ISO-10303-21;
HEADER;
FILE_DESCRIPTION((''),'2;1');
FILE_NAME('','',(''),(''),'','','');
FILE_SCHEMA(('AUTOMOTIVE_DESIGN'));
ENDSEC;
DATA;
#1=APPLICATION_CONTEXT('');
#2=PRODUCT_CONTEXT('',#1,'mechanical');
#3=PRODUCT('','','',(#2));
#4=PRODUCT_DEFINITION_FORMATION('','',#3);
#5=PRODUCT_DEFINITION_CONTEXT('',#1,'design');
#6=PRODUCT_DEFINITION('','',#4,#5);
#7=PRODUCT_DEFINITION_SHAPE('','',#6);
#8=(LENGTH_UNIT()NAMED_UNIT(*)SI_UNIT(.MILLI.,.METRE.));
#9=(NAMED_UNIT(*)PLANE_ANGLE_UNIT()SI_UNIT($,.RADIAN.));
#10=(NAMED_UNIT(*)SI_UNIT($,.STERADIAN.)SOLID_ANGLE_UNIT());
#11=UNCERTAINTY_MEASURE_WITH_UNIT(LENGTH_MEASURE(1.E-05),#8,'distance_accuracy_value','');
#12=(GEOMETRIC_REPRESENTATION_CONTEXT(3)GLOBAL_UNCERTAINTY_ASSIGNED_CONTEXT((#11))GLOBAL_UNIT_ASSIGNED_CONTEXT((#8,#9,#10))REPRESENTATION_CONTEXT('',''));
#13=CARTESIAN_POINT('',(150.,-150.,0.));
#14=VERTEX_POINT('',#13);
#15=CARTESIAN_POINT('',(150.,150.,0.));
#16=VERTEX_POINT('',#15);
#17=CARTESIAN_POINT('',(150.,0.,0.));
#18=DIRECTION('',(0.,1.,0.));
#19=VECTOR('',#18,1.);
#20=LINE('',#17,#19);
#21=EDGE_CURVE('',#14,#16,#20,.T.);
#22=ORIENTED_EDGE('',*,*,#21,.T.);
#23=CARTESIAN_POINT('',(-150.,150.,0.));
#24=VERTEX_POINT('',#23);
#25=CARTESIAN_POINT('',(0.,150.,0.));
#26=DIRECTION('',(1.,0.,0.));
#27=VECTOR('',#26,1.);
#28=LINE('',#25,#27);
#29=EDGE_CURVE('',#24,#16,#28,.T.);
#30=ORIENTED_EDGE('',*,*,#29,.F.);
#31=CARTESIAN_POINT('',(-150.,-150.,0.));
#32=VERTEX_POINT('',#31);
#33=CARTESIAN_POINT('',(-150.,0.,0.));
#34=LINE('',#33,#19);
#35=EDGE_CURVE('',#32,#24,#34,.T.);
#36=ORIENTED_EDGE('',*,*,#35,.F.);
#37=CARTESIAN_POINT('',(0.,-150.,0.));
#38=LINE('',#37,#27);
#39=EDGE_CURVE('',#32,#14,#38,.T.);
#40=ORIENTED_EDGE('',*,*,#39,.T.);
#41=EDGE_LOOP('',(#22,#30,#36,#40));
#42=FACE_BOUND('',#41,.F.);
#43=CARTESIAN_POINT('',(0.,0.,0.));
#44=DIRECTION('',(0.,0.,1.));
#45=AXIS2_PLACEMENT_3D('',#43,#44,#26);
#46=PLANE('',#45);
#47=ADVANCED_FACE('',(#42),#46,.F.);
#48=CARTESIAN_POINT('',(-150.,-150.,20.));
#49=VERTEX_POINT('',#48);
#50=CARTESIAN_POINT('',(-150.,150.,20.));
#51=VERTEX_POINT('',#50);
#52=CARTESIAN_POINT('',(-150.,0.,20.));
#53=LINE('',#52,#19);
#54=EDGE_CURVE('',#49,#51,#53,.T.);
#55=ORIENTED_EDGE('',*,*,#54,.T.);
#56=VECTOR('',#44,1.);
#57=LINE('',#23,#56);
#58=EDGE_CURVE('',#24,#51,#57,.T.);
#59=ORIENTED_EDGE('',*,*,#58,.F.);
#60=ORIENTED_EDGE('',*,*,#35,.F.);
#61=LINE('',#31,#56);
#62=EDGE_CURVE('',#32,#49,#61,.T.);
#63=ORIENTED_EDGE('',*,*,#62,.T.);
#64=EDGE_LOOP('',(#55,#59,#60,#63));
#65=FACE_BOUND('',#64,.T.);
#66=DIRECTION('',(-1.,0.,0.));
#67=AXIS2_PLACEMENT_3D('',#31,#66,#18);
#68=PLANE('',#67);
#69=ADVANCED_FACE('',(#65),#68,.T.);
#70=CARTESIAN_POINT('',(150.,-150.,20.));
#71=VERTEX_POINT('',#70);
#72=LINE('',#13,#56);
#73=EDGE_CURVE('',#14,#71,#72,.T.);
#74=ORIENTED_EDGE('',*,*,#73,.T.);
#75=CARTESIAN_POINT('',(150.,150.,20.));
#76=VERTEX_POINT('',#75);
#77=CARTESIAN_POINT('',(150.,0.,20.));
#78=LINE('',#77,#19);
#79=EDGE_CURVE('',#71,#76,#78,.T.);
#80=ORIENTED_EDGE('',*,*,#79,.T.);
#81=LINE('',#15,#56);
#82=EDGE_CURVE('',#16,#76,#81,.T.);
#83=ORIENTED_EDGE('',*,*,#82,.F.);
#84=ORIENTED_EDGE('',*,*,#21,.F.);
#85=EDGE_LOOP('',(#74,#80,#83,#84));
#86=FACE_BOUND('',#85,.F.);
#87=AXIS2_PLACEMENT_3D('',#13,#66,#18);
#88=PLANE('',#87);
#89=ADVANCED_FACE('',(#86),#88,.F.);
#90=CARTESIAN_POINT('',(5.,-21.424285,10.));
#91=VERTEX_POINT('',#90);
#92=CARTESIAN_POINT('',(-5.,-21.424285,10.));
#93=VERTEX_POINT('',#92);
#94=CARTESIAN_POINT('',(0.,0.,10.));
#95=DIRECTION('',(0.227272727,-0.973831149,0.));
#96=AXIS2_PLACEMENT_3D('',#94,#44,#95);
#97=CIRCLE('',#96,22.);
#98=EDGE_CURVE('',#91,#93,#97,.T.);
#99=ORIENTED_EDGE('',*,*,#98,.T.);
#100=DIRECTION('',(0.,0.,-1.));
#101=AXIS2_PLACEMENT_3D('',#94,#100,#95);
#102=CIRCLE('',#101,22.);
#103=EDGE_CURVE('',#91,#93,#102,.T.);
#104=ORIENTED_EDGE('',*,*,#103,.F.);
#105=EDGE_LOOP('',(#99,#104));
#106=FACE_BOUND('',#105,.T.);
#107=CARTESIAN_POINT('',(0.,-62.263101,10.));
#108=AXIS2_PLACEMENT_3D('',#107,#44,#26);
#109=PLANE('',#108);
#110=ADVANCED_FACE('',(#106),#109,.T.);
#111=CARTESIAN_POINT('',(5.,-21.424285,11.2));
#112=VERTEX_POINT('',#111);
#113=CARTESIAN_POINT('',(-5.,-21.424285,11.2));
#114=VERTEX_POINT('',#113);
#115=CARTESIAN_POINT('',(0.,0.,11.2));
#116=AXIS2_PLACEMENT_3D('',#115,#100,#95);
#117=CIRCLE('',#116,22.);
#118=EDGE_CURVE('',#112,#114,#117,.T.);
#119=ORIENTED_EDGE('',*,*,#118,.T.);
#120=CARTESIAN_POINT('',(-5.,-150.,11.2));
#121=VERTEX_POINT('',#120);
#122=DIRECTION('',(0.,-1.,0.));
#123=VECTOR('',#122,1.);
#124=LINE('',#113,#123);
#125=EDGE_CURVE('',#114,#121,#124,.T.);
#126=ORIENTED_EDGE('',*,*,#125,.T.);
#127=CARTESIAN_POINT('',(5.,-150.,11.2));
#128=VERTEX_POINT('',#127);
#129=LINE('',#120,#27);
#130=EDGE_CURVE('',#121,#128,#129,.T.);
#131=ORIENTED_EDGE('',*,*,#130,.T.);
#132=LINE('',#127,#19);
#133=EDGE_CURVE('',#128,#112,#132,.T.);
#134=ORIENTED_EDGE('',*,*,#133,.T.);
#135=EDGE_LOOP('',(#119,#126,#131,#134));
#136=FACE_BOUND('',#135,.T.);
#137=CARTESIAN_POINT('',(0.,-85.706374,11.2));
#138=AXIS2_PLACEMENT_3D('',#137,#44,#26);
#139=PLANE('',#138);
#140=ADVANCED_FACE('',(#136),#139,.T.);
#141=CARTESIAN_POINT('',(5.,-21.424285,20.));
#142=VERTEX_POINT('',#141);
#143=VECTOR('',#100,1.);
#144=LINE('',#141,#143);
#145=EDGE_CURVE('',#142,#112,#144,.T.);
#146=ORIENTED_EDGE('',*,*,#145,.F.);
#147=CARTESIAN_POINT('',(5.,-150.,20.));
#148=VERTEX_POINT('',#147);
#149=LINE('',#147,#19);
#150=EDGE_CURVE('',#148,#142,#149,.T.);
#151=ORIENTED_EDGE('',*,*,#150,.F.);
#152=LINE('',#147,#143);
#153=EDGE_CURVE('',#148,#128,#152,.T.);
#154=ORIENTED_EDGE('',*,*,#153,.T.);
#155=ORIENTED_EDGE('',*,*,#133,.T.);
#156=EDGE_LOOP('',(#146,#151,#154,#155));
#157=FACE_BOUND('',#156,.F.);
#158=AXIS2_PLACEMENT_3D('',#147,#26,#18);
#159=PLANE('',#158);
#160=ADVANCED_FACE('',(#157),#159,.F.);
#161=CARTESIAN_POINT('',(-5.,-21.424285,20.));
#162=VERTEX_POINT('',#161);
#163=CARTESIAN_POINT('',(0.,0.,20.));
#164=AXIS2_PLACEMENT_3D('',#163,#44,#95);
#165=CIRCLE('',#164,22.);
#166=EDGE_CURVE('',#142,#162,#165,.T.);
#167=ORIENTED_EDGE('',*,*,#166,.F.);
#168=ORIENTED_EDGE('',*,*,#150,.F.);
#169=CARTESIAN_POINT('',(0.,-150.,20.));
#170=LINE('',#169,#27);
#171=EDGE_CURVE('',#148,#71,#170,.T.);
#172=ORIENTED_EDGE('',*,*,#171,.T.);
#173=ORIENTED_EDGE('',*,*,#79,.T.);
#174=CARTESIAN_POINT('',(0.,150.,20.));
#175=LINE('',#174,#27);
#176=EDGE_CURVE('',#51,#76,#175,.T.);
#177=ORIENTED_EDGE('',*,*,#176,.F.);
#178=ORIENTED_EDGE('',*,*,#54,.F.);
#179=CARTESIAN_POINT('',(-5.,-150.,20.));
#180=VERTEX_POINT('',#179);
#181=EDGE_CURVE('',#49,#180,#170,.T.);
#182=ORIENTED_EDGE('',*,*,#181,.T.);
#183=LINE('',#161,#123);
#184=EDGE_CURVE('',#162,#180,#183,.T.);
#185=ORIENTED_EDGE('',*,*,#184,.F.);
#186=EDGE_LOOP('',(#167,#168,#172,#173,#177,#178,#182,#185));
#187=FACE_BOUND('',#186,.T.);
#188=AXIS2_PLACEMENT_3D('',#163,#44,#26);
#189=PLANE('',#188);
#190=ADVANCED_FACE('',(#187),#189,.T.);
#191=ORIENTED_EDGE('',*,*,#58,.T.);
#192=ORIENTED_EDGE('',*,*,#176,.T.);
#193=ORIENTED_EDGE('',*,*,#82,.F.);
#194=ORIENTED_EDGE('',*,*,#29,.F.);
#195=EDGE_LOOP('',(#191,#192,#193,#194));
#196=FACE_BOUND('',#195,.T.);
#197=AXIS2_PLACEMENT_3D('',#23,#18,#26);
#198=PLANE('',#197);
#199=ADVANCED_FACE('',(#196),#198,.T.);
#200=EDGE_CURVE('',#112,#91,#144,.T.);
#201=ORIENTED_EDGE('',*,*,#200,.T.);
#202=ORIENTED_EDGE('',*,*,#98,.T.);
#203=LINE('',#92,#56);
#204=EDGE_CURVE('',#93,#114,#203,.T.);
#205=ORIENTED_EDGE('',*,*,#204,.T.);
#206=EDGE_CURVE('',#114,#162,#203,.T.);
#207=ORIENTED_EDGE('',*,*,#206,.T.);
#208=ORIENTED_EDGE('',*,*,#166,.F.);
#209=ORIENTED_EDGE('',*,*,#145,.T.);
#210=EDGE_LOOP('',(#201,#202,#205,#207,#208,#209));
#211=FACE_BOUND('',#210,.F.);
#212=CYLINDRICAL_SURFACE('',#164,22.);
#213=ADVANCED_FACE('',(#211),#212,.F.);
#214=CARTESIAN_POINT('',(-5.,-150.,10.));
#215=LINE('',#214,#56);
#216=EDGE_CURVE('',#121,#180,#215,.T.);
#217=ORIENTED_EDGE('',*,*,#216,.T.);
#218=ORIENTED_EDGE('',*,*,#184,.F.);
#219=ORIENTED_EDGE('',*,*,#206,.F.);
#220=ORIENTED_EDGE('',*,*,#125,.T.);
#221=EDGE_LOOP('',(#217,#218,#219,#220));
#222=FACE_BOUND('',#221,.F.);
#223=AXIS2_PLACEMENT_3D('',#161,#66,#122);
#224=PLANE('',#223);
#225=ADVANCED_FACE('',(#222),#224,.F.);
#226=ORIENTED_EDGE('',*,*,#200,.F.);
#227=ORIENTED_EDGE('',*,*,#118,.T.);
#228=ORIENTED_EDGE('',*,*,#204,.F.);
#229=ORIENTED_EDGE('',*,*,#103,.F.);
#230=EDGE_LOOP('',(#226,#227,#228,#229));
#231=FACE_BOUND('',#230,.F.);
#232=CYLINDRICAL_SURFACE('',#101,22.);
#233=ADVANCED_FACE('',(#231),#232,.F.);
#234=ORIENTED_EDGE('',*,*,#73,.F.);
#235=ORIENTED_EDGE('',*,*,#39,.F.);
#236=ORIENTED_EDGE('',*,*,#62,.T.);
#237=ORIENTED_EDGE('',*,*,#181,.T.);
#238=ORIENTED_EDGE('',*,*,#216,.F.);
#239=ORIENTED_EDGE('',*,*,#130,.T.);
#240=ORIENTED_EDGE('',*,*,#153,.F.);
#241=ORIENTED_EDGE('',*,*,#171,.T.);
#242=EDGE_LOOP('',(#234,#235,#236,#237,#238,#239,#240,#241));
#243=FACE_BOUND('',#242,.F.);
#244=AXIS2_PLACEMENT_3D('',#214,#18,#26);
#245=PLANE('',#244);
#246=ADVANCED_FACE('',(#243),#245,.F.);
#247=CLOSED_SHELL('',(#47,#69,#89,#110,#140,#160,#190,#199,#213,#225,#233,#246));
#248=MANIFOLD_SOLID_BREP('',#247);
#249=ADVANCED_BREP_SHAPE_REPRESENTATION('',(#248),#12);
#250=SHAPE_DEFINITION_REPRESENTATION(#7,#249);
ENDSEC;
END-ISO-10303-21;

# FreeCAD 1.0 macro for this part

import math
import FreeCAD as App
import Part
import Sketcher
Q = App.Units.Quantity


def add_polygon(sketch, points):
    """Adds a closed chain of lines whose ends are joined by coincident constraints."""
    first, n = sketch.GeometryCount, len(points)
    for a, b in zip(points, points[1:] + points[:1]):
        sketch.addGeometry(Part.LineSegment(App.Vector(*a, 0), App.Vector(*b, 0)), False)
    for i in range(n):
        sketch.addConstraint(Sketcher.Constraint("Coincident", first + i, 2, first + (i + 1) % n, 1))

doc = App.newDocument("Part")
params = doc.addObject("Spreadsheet::Sheet", "Params")
for row, (alias, value) in enumerate([
    ("sketch1_width", "300 mm"),
    ("pad1_length", "20 mm"),
    ("sketch2_radius", "22 mm"),
    ("sketch2_width", "10 mm"),
    ("pocket1_length", "10 mm"),
    ("sketch3_radius", "22 mm"),
    ("sketch3_width", "10 mm"),
    ("pocket2_length", "8.8 mm"),
    ("sketch4_radius", "22 mm"),
    ("sketch4_width", "10 mm"),
    ("pad2_length", "1.2 mm"),
], start=1):
    params.set(f"A{row}", alias)
    params.set(f"B{row}", "=" + value)
    params.setAlias(f"B{row}", alias)

body = doc.addObject("PartDesign::Body", "Body")

sketch1 = body.newObject("Sketcher::SketchObject", "Sketch")
sketch1.AttachmentSupport = (doc.getObject("XY_Plane"), [""])
sketch1.MapMode = "FlatFace"
add_polygon(sketch1, [(-150, 150), (-150, -150), (150, -150), (150, 150)])
sketch1.addConstraint(Sketcher.Constraint("Vertical", 0))
sketch1.addConstraint(Sketcher.Constraint("Horizontal", 1))
sketch1.addConstraint(Sketcher.Constraint("Vertical", 2))
sketch1.addConstraint(Sketcher.Constraint("Horizontal", 3))
sketch1.addConstraint(Sketcher.Constraint("Symmetric", 0, 2, 2, 2, -1, 1))
sketch1.addConstraint(Sketcher.Constraint("Equal", 3, 0))
sketch1.addConstraint(Sketcher.Constraint("DistanceX", 1, 1, 1, 2, Q("300 mm")))
sketch1.setExpression("Constraints[10]", "Params.sketch1_width")
pad1 = body.newObject("PartDesign::Pad", "Pad")
pad1.Profile = sketch1
pad1.setExpression("Length", "Params.pad1_length")

sketch2 = body.newObject("Sketcher::SketchObject", "Sketch001")
sketch2.AttachmentSupport = (doc.getObject("XY_Plane"), [""])
sketch2.MapMode = "FlatFace"
sketch2.AttachmentOffset = App.Placement(App.Vector(0, 0, 20), App.Rotation())
sketch2.addGeometry(Part.LineSegment(App.Vector(-5, -21, 0), App.Vector(-5, -150, 0)), False)
sketch2.addGeometry(Part.LineSegment(App.Vector(-5, -150, 0), App.Vector(5, -150, 0)), False)
sketch2.addGeometry(Part.LineSegment(App.Vector(5, -150, 0), App.Vector(5, -21, 0)), False)
sketch2.addGeometry(Part.ArcOfCircle(Part.Circle(App.Vector(0, 0, 0), App.Vector(0, 0, 1), 22), math.radians(-77), math.radians(257)), False)
sketch2.addConstraint(Sketcher.Constraint("Coincident", 0, 2, 1, 1))
sketch2.addConstraint(Sketcher.Constraint("Coincident", 1, 2, 2, 1))
sketch2.addConstraint(Sketcher.Constraint("Coincident", 2, 2, 3, 1))
sketch2.addConstraint(Sketcher.Constraint("Coincident", 3, 2, 0, 1))
sketch2.addConstraint(Sketcher.Constraint("Vertical", 0))
sketch2.addConstraint(Sketcher.Constraint("Horizontal", 1))
sketch2.addConstraint(Sketcher.Constraint("Vertical", 2))
sketch2.addConstraint(Sketcher.Constraint("Coincident", 3, 3, -1, 1))
sketch2.addConstraint(Sketcher.Constraint("Horizontal", 2, 2, 3, 2))
sketch2.addConstraint(Sketcher.Constraint("Radius", 3, Q("22 mm")))
sketch2.addConstraint(Sketcher.Constraint("DistanceX", 1, 1, 1, 2, Q("10 mm")))
sketch2.addConstraint(Sketcher.Constraint("DistanceY", 0, 2, -1, 1, Q("150 mm")))
sketch2.setExpression("Constraints[9]", "Params.sketch2_radius")
sketch2.setExpression("Constraints[10]", "Params.sketch2_width")
pocket1 = body.newObject("PartDesign::Pocket", "Pocket")
pocket1.Profile = sketch2
pocket1.setExpression("Length", "Params.pocket1_length")

sketch3 = body.newObject("Sketcher::SketchObject", "Sketch002")
sketch3.AttachmentSupport = (doc.getObject("XY_Plane"), [""])
sketch3.MapMode = "FlatFace"
sketch3.AttachmentOffset = App.Placement(App.Vector(0, 0, 20), App.Rotation())
sketch3.addGeometry(Part.LineSegment(App.Vector(-5, -21, 0), App.Vector(-5, -150, 0)), False)
sketch3.addGeometry(Part.LineSegment(App.Vector(-5, -150, 0), App.Vector(5, -150, 0)), False)
sketch3.addGeometry(Part.LineSegment(App.Vector(5, -150, 0), App.Vector(5, -21, 0)), False)
sketch3.addGeometry(Part.ArcOfCircle(Part.Circle(App.Vector(0, 0, 0), App.Vector(0, 0, 1), 22), math.radians(-77), math.radians(257)), False)
sketch3.addConstraint(Sketcher.Constraint("Coincident", 0, 2, 1, 1))
sketch3.addConstraint(Sketcher.Constraint("Coincident", 1, 2, 2, 1))
sketch3.addConstraint(Sketcher.Constraint("Coincident", 2, 2, 3, 1))
sketch3.addConstraint(Sketcher.Constraint("Coincident", 3, 2, 0, 1))
sketch3.addConstraint(Sketcher.Constraint("Vertical", 0))
sketch3.addConstraint(Sketcher.Constraint("Horizontal", 1))
sketch3.addConstraint(Sketcher.Constraint("Vertical", 2))
sketch3.addConstraint(Sketcher.Constraint("Coincident", 3, 3, -1, 1))
sketch3.addConstraint(Sketcher.Constraint("Horizontal", 2, 2, 3, 2))
sketch3.addConstraint(Sketcher.Constraint("Radius", 3, Q("22 mm")))
sketch3.addConstraint(Sketcher.Constraint("DistanceX", 1, 1, 1, 2, Q("10 mm")))
sketch3.addConstraint(Sketcher.Constraint("DistanceY", 0, 2, -1, 1, Q("150 mm")))
sketch3.setExpression("Constraints[9]", "Params.sketch3_radius")
sketch3.setExpression("Constraints[10]", "Params.sketch3_width")
pocket2 = body.newObject("PartDesign::Pocket", "Pocket001")
pocket2.Profile = sketch3
pocket2.setExpression("Length", "Params.pocket2_length")

sketch4 = body.newObject("Sketcher::SketchObject", "Sketch003")
sketch4.AttachmentSupport = (doc.getObject("XY_Plane"), [""])
sketch4.MapMode = "FlatFace"
sketch4.AttachmentOffset = App.Placement(App.Vector(0, 0, 10), App.Rotation())
sketch4.addGeometry(Part.ArcOfCircle(Part.Circle(App.Vector(0, 0, 0), App.Vector(0, 0, 1), 22), math.radians(-103), math.radians(-77)), False)
sketch4.addGeometry(Part.LineSegment(App.Vector(-5, -21, 0), App.Vector(-5, -150, 0)), False)
sketch4.addGeometry(Part.LineSegment(App.Vector(-5, -150, 0), App.Vector(5, -150, 0)), False)
sketch4.addGeometry(Part.LineSegment(App.Vector(5, -150, 0), App.Vector(5, -21, 0)), False)
sketch4.addConstraint(Sketcher.Constraint("Coincident", 0, 1, 1, 1))
sketch4.addConstraint(Sketcher.Constraint("Coincident", 1, 2, 2, 1))
sketch4.addConstraint(Sketcher.Constraint("Coincident", 2, 2, 3, 1))
sketch4.addConstraint(Sketcher.Constraint("Coincident", 3, 2, 0, 2))
sketch4.addConstraint(Sketcher.Constraint("Vertical", 1))
sketch4.addConstraint(Sketcher.Constraint("Horizontal", 2))
sketch4.addConstraint(Sketcher.Constraint("Vertical", 3))
sketch4.addConstraint(Sketcher.Constraint("Coincident", 0, 3, -1, 1))
sketch4.addConstraint(Sketcher.Constraint("Horizontal", 0, 1, 3, 2))
sketch4.addConstraint(Sketcher.Constraint("Radius", 0, Q("22 mm")))
sketch4.addConstraint(Sketcher.Constraint("DistanceX", 2, 1, 2, 2, Q("10 mm")))
sketch4.addConstraint(Sketcher.Constraint("DistanceY", 1, 2, -1, 1, Q("150 mm")))
sketch4.setExpression("Constraints[9]", "Params.sketch4_radius")
sketch4.setExpression("Constraints[10]", "Params.sketch4_width")
pad2 = body.newObject("PartDesign::Pad", "Pad001")
pad2.Profile = sketch4
pad2.setExpression("Length", "Params.pad2_length")

doc.recompute()
